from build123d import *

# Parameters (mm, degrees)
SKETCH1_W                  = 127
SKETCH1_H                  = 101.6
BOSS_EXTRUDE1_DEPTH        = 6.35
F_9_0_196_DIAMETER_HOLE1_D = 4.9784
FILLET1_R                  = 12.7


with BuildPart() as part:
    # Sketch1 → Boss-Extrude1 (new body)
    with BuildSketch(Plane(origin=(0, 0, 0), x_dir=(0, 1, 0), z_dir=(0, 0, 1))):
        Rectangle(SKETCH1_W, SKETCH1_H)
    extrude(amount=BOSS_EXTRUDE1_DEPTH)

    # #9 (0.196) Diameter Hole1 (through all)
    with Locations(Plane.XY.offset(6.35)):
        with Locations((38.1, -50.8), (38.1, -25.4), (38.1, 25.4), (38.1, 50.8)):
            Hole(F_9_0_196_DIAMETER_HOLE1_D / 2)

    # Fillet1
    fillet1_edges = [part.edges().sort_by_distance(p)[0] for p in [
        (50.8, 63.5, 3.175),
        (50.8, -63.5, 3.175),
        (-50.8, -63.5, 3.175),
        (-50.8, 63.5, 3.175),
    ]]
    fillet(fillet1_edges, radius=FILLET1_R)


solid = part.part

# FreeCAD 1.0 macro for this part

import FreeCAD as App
import Part
import Sketcher

V = App.Vector
Q = App.Units.Quantity


def edges_at(feature, points):
    """Names of the edges that pass closest to the given points."""
    edges = feature.Shape.Edges
    near = lambda p: min(range(len(edges)), key=lambda i: edges[i].distToShape(Part.Vertex(*p))[0])
    return sorted({f"Edge{near(p) + 1}" for p in points})


def add_polygon(sketch, points):
    """Adds a closed chain of lines whose ends are joined by coincident constraints."""
    first, n = sketch.GeometryCount, len(points)
    for a, b in zip(points, points[1:] + points[:1]):
        sketch.addGeometry(Part.LineSegment(App.Vector(*a, 0), App.Vector(*b, 0)), False)
    for i in range(n):
        sketch.addConstraint(Sketcher.Constraint("Coincident", first + i, 2, first + (i + 1) % n, 1))

doc = App.newDocument("Part")
body = doc.addObject("PartDesign::Body", "Body")

# Sketch on XY plane
sketch1 = doc.addObject("Sketcher::SketchObject", "Sketch")
body.addObject(sketch1)
sketch1.AttachmentSupport = (doc.XY_Plane, [""])
sketch1.MapMode = "FlatFace"
add_polygon(sketch1, [(-51, -64), (51, -64), (51, 64), (-51, 64)])  # lines 0-3
sketch1.addConstraint(Sketcher.Constraint("Horizontal", 0))
sketch1.addConstraint(Sketcher.Constraint("Vertical", 1))
sketch1.addConstraint(Sketcher.Constraint("Horizontal", 2))
sketch1.addConstraint(Sketcher.Constraint("Vertical", 3))
sketch1.addConstraint(Sketcher.Constraint("Symmetric", 0, 2, 2, 2, -1, 1))
sketch1.addConstraint(Sketcher.Constraint("DistanceX", 0, 1, 0, 2, Q("4 in")))
sketch1.addConstraint(Sketcher.Constraint("DistanceY", 1, 1, 1, 2, Q("5 in")))
pad1 = doc.addObject("PartDesign::Pad", "Pad")
body.addObject(pad1)
pad1.Profile = sketch1
pad1.Length = Q("0.25 in")

# Sketch on XY plane
sketch2 = doc.addObject("Sketcher::SketchObject", "Sketch001")
body.addObject(sketch2)
sketch2.AttachmentSupport = (doc.XY_Plane, [""])
sketch2.MapMode = "FlatFace"
sketch2.AttachmentOffset = App.Placement(V(0, 0, 0.25 * 25.4), App.Rotation())
sketch2.addGeometry(Part.Circle(V(38.1, -50.8, 0), V(0, 0, 1), 2.5), False)
sketch2.addGeometry(Part.Circle(V(38.1, -25.4, 0), V(0, 0, 1), 2.5), False)
sketch2.addGeometry(Part.Circle(V(38.1, 25.4, 0), V(0, 0, 1), 2.5), False)
sketch2.addGeometry(Part.Circle(V(38.1, 50.8, 0), V(0, 0, 1), 2.5), False)
sketch2.addConstraint(Sketcher.Constraint("Equal", 0, 1))
sketch2.addConstraint(Sketcher.Constraint("Equal", 1, 2))
sketch2.addConstraint(Sketcher.Constraint("Equal", 2, 3))
sketch2.addConstraint(Sketcher.Constraint("Symmetric", 1, 3, 2, 3, -1))
sketch2.addConstraint(Sketcher.Constraint("Symmetric", 0, 3, 3, 3, -1))
sketch2.addConstraint(Sketcher.Constraint("Vertical", 0, 3, 1, 3))
sketch2.addConstraint(Sketcher.Constraint("Diameter", 0, Q("0.196 in")))
sketch2.addConstraint(Sketcher.Constraint("DistanceY", 0, 3, -1, 1, Q("2 in")))
sketch2.addConstraint(Sketcher.Constraint("DistanceY", 1, 3, -1, 1, Q("1 in")))
sketch2.addConstraint(Sketcher.Constraint("DistanceX", -1, 1, 0, 3, Q("1.5 in")))
doc.recompute()
hole = doc.addObject("PartDesign::Hole", "Hole")
body.addObject(hole)
hole.Profile = sketch2
hole.ThreadType = "None"
hole.Diameter = Q("0.196 in")
hole.DepthType = "ThroughAll"
doc.recompute()

fillet = doc.addObject("PartDesign::Fillet", "Fillet")
body.addObject(fillet)
fillet.Base = (hole, edges_at(hole, [
    (50.8, 63.5, 3.175),
    (50.8, -63.5, 3.175),
    (-50.8, -63.5, 3.175),
    (-50.8, 63.5, 3.175),
]))
fillet.Radius = Q("0.5 in")

doc.recompute()
